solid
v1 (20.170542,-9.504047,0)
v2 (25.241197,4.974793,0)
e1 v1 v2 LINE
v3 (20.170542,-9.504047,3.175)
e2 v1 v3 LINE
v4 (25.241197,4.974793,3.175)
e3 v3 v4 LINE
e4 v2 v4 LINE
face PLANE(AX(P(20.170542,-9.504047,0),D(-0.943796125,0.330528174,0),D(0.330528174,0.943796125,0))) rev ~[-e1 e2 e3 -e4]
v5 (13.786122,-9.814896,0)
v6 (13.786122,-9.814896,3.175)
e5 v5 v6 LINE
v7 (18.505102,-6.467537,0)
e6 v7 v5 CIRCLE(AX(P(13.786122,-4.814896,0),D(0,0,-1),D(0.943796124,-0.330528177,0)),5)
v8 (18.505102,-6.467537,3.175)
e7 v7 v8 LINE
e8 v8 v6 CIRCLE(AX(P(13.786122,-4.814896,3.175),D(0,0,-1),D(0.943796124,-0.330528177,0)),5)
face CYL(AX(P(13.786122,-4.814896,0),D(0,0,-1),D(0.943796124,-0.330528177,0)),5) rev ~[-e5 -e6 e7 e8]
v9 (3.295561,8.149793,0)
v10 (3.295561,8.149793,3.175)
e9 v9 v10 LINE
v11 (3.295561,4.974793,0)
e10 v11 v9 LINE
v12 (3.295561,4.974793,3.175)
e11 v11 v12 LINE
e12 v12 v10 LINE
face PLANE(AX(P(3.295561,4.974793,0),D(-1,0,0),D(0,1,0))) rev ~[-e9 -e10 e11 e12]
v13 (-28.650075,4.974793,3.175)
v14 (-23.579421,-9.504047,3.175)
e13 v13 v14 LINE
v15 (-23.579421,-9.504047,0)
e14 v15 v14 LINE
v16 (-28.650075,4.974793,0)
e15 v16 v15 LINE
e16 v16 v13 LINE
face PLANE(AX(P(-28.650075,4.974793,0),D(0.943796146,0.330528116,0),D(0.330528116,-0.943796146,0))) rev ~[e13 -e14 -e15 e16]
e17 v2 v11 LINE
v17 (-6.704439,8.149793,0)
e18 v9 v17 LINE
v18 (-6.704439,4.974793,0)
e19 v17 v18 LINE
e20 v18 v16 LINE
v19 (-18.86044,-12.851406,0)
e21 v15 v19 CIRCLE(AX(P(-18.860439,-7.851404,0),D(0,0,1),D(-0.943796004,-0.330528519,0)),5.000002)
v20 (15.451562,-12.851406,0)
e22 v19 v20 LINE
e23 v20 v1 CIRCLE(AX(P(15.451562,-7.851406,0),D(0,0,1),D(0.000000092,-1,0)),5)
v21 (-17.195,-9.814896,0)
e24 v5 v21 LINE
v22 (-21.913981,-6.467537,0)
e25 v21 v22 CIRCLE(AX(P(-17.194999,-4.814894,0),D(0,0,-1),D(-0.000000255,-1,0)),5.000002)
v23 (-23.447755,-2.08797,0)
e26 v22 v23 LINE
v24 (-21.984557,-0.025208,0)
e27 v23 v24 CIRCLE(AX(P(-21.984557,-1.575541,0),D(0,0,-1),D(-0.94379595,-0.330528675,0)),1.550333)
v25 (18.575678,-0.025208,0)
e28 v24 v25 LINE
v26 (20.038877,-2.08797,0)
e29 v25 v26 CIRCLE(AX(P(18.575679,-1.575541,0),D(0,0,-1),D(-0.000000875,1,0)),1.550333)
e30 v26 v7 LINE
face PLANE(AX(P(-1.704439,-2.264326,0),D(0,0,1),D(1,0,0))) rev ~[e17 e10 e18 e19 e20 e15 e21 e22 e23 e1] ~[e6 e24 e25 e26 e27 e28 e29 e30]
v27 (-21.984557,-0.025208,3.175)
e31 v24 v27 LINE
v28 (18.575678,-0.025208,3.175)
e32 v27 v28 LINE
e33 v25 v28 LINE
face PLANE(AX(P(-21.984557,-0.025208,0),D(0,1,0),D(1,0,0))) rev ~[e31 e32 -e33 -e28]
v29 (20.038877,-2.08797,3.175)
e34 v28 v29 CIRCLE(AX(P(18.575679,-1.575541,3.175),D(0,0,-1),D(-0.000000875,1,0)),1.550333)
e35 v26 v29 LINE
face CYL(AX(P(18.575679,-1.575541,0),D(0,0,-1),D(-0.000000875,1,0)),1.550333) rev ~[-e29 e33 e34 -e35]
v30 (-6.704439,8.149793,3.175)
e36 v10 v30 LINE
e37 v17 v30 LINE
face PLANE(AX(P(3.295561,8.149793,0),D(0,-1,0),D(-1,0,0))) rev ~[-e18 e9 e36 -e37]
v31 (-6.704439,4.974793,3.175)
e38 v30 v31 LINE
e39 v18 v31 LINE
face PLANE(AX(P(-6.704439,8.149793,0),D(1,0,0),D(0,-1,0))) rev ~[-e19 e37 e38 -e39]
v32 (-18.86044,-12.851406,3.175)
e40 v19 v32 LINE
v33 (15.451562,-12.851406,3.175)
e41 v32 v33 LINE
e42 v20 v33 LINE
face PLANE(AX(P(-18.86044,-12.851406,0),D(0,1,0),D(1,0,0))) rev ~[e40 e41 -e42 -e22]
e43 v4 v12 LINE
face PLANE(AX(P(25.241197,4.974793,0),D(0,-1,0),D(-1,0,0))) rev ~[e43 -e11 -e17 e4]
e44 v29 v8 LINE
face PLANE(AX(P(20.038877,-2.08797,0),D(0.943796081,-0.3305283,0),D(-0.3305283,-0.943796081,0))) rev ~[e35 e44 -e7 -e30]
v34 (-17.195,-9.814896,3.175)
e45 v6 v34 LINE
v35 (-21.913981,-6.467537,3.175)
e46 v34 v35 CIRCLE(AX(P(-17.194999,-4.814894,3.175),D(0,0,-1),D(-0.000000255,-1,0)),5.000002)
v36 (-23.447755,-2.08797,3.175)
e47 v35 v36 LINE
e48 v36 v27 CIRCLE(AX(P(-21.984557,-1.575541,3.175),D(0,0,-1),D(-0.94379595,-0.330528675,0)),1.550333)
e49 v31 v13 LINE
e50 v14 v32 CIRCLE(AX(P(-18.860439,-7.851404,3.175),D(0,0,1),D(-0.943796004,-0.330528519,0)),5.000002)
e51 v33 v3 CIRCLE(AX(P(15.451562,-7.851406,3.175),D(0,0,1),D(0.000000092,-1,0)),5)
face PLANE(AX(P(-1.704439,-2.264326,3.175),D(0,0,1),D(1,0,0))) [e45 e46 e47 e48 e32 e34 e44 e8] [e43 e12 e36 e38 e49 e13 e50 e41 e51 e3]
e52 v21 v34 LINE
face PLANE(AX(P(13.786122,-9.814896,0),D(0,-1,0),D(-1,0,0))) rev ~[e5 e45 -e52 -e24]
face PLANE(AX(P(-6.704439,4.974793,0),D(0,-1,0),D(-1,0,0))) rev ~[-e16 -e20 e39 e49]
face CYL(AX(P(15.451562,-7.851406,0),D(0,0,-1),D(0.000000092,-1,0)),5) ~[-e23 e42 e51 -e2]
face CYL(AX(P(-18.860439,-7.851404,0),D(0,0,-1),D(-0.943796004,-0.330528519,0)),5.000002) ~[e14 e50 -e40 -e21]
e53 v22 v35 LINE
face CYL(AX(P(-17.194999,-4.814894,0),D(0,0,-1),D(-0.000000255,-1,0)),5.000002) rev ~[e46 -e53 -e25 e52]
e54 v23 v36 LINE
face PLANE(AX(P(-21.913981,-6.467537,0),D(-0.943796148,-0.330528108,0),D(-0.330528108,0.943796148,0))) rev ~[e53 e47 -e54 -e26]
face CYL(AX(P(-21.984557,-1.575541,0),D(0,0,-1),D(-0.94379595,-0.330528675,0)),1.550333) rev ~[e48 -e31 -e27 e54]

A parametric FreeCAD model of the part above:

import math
import FreeCAD as App
import Part
import Sketcher

V = App.Vector

doc = App.newDocument("Part")
params = doc.addObject("Spreadsheet::Sheet", "Params")
for row, (alias, value) in enumerate([
    ("sketch1_radius", "5 mm"),
    ("sketch1_radius2", "5 mm"),
    ("sketch1_width", "10 mm"),
    ("pad1_length", "3.175 mm"),
], start=1):
    params.set(f"A{row}", alias)
    params.set(f"B{row}", "=" + value)
    params.setAlias(f"B{row}", alias)

body = doc.addObject("PartDesign::Body", "Body")

# Sketch on XY plane
sketch1 = doc.addObject("Sketcher::SketchObject", "Sketch")
body.addObject(sketch1)
sketch1.AttachmentSupport = (doc.XY_Plane, [""])
sketch1.MapMode = "FlatFace"
sketch1.addGeometry(Part.LineSegment(V(25.241197, 4.974793, 0), V(3.295561, 4.974793, 0)), False)
sketch1.addGeometry(Part.LineSegment(V(3.295561, 4.974793, 0), V(3.295561, 8.149793, 0)), False)
sketch1.addGeometry(Part.LineSegment(V(3.295561, 8.149793, 0), V(-6.704439, 8.149793, 0)), False)
sketch1.addGeometry(Part.LineSegment(V(-6.704439, 8.149793, 0), V(-6.704439, 4.974793, 0)), False)
sketch1.addGeometry(Part.LineSegment(V(-6.704439, 4.974793, 0), V(-28.650075, 4.974793, 0)), False)
sketch1.addGeometry(Part.LineSegment(V(-28.650075, 4.974793, 0), V(-23.579421, -9.504047, 0)), False)
sketch1.addGeometry(Part.ArcOfCircle(Part.Circle(V(-18.860439, -7.851404, 0), V(0, 0, 1), 5.000002), math.radians(-160.699142), math.radians(-90.000015)), False)
sketch1.addGeometry(Part.LineSegment(V(-18.86044, -12.851406, 0), V(15.451562, -12.851406, 0)), False)
sketch1.addGeometry(Part.ArcOfCircle(Part.Circle(V(15.451562, -7.851406, 0), V(0, 0, 1), 5), math.radians(-89.999995), math.radians(-19.300837)), False)
sketch1.addGeometry(Part.LineSegment(V(20.170542, -9.504047, 0), V(25.241197, 4.974793, 0)), False)
sketch1.addGeometry(Part.LineSegment(V(-21.984557, -0.025208, 0), V(18.575678, -0.025208, 0)), False)
sketch1.addGeometry(Part.ArcOfCircle(Part.Circle(V(18.575679, -1.575541, 0), V(0, 0, 1), 1.550333), math.radians(-19.300867), math.radians(90.00005)), False)
sketch1.addGeometry(Part.LineSegment(V(20.038877, -2.08797, 0), V(18.505102, -6.467537, 0)), False)
sketch1.addGeometry(Part.ArcOfCircle(Part.Circle(V(13.786122, -4.814896, 0), V(0, 0, 1), 5), math.radians(-89.999995), math.radians(-19.300837)), False)
sketch1.addGeometry(Part.LineSegment(V(13.786122, -9.814896, 0), V(-17.195, -9.814896, 0)), False)
sketch1.addGeometry(Part.ArcOfCircle(Part.Circle(V(-17.194999, -4.814894, 0), V(0, 0, 1), 5.000002), math.radians(-160.699142), math.radians(-90.000015)), False)
sketch1.addGeometry(Part.LineSegment(V(-21.913981, -6.467537, 0), V(-23.447755, -2.08797, 0)), False)
sketch1.addGeometry(Part.ArcOfCircle(Part.Circle(V(-21.984557, -1.575541, 0), V(0, 0, 1), 1.550333), math.radians(89.999987), math.radians(199.300867)), False)
sketch1.addConstraint(Sketcher.Constraint("Coincident", 0, 2, 1, 1))
sketch1.addConstraint(Sketcher.Constraint("Coincident", 1, 2, 2, 1))
sketch1.addConstraint(Sketcher.Constraint("Coincident", 2, 2, 3, 1))
sketch1.addConstraint(Sketcher.Constraint("Coincident", 3, 2, 4, 1))
sketch1.addConstraint(Sketcher.Constraint("Coincident", 4, 2, 5, 1))
sketch1.addConstraint(Sketcher.Constraint("Coincident", 5, 2, 6, 1))
sketch1.addConstraint(Sketcher.Constraint("Coincident", 6, 2, 7, 1))
sketch1.addConstraint(Sketcher.Constraint("Coincident", 7, 2, 8, 1))
sketch1.addConstraint(Sketcher.Constraint("Coincident", 8, 2, 9, 1))
sketch1.addConstraint(Sketcher.Constraint("Coincident", 9, 2, 0, 1))
sketch1.addConstraint(Sketcher.Constraint("Coincident", 10, 2, 11, 2))
sketch1.addConstraint(Sketcher.Constraint("Coincident", 11, 1, 12, 1))
sketch1.addConstraint(Sketcher.Constraint("Coincident", 12, 2, 13, 2))
sketch1.addConstraint(Sketcher.Constraint("Coincident", 13, 1, 14, 1))
sketch1.addConstraint(Sketcher.Constraint("Coincident", 14, 2, 15, 2))
sketch1.addConstraint(Sketcher.Constraint("Coincident", 15, 1, 16, 1))
sketch1.addConstraint(Sketcher.Constraint("Coincident", 16, 2, 17, 2))
sketch1.addConstraint(Sketcher.Constraint("Coincident", 17, 1, 10, 1))
sketch1.addConstraint(Sketcher.Constraint("Horizontal", 0))
sketch1.addConstraint(Sketcher.Constraint("Vertical", 1))
sketch1.addConstraint(Sketcher.Constraint("Horizontal", 2))
sketch1.addConstraint(Sketcher.Constraint("Vertical", 3))
sketch1.addConstraint(Sketcher.Constraint("Horizontal", 4))
sketch1.addConstraint(Sketcher.Constraint("Horizontal", 7))
sketch1.addConstraint(Sketcher.Constraint("Horizontal", 10))
sketch1.addConstraint(Sketcher.Constraint("Horizontal", 14))
sketch1.addConstraint(Sketcher.Constraint("Radius", 8, 5.0))
sketch1.addConstraint(Sketcher.Constraint("Radius", 13, 5.0))
sketch1.addConstraint(Sketcher.Constraint("DistanceX", 2, 2, 2, 1, 10.0))
sketch1.addConstraint(Sketcher.Constraint("DistanceY", 10, 2, 9, 2, 5.000001))
sketch1.addConstraint(Sketcher.Constraint("DistanceY", 17, 1, 4, 2, 5.000001))
sketch1.addConstraint(Sketcher.Constraint("DistanceY", 1, 1, 1, 2, 3.175))
sketch1.addConstraint(Sketcher.Constraint("DistanceX", 15, 3, -1, 1, 17.194999))
sketch1.addConstraint(Sketcher.Constraint("DistanceX", 14, 2, -1, 1, 17.195))
sketch1.addConstraint(Sketcher.Constraint("Radius", 6, 5.000002))
sketch1.addConstraint(Sketcher.Constraint("Radius", 11, 1.550333))
sketch1.addConstraint(Sketcher.Constraint("Radius", 15, 5.000002))
sketch1.addConstraint(Sketcher.Constraint("Radius", 17, 1.550333))
sketch1.addConstraint(Sketcher.Constraint("DistanceX", 6, 3, 8, 3, 34.312))
sketch1.addConstraint(Sketcher.Constraint("DistanceX", 0, 2, 8, 3, 12.156001))
sketch1.addConstraint(Sketcher.Constraint("DistanceX", 0, 2, 7, 2, 12.156001))
sketch1.addConstraint(Sketcher.Constraint("DistanceX", 14, 2, 14, 1, 30.981122))
sketch1.addConstraint(Sketcher.Constraint("DistanceY", 8, 3, 0, 2, 12.826199))
sketch1.addConstraint(Sketcher.Constraint("DistanceX", 10, 2, 11, 1, 1.463199))
sketch1.addConstraint(Sketcher.Constraint("DistanceX", 16, 2, 17, 1, 1.463198))
sketch1.addConstraint(Sketcher.Constraint("DistanceX", 0, 2, 0, 1, 21.945636))
sketch1.addConstraint(Sketcher.Constraint("DistanceX", 4, 2, 4, 1, 21.945636))
sketch1.addConstraint(Sketcher.Constraint("DistanceX", 7, 1, 7, 2, 34.312002))
sketch1.addConstraint(Sketcher.Constraint("DistanceX", 10, 1, 10, 2, 40.560235))
sketch1.addConstraint(Sketcher.Constraint("DistanceX", 6, 3, -1, 1, 18.860439))
sketch1.addConstraint(Sketcher.Constraint("DistanceX", -1, 1, 11, 3, 18.575679))
sketch1.addConstraint(Sketcher.Constraint("DistanceY", 11, 3, -1, 1, 1.575541))
sketch1.addConstraint(Sketcher.Constraint("DistanceX", -1, 1, 13, 3, 13.786122))
sketch1.addConstraint(Sketcher.Constraint("DistanceX", 5, 2, -1, 1, 23.579421))
sketch1.addConstraint(Sketcher.Constraint("DistanceX", -1, 1, 8, 2, 20.170542))
sketch1.addConstraint(Sketcher.Constraint("DistanceX", -1, 1, 10, 2, 18.575678))
sketch1.addConstraint(Sketcher.Constraint("DistanceX", 15, 1, -1, 1, 21.913981))
sketch1.addConstraint(Sketcher.Constraint("DistanceY", 16, 2, -1, 1, 2.08797))
sketch1.addConstraint(Sketcher.Constraint("DistanceY", 8, 3, 13, 3, 3.03651))
sketch1.addConstraint(Sketcher.Constraint("DistanceX", 8, 3, 12, 2, 3.05354))
sketch1.setExpression("Constraints[26]", "Params.sketch1_radius")
sketch1.setExpression("Constraints[27]", "Params.sketch1_radius2")
sketch1.setExpression("Constraints[28]", "Params.sketch1_width")
pad1 = doc.addObject("PartDesign::Pad", "Pad")
body.addObject(pad1)
pad1.Profile = sketch1
pad1.setExpression("Length", "Params.pad1_length")

doc.recompute()
